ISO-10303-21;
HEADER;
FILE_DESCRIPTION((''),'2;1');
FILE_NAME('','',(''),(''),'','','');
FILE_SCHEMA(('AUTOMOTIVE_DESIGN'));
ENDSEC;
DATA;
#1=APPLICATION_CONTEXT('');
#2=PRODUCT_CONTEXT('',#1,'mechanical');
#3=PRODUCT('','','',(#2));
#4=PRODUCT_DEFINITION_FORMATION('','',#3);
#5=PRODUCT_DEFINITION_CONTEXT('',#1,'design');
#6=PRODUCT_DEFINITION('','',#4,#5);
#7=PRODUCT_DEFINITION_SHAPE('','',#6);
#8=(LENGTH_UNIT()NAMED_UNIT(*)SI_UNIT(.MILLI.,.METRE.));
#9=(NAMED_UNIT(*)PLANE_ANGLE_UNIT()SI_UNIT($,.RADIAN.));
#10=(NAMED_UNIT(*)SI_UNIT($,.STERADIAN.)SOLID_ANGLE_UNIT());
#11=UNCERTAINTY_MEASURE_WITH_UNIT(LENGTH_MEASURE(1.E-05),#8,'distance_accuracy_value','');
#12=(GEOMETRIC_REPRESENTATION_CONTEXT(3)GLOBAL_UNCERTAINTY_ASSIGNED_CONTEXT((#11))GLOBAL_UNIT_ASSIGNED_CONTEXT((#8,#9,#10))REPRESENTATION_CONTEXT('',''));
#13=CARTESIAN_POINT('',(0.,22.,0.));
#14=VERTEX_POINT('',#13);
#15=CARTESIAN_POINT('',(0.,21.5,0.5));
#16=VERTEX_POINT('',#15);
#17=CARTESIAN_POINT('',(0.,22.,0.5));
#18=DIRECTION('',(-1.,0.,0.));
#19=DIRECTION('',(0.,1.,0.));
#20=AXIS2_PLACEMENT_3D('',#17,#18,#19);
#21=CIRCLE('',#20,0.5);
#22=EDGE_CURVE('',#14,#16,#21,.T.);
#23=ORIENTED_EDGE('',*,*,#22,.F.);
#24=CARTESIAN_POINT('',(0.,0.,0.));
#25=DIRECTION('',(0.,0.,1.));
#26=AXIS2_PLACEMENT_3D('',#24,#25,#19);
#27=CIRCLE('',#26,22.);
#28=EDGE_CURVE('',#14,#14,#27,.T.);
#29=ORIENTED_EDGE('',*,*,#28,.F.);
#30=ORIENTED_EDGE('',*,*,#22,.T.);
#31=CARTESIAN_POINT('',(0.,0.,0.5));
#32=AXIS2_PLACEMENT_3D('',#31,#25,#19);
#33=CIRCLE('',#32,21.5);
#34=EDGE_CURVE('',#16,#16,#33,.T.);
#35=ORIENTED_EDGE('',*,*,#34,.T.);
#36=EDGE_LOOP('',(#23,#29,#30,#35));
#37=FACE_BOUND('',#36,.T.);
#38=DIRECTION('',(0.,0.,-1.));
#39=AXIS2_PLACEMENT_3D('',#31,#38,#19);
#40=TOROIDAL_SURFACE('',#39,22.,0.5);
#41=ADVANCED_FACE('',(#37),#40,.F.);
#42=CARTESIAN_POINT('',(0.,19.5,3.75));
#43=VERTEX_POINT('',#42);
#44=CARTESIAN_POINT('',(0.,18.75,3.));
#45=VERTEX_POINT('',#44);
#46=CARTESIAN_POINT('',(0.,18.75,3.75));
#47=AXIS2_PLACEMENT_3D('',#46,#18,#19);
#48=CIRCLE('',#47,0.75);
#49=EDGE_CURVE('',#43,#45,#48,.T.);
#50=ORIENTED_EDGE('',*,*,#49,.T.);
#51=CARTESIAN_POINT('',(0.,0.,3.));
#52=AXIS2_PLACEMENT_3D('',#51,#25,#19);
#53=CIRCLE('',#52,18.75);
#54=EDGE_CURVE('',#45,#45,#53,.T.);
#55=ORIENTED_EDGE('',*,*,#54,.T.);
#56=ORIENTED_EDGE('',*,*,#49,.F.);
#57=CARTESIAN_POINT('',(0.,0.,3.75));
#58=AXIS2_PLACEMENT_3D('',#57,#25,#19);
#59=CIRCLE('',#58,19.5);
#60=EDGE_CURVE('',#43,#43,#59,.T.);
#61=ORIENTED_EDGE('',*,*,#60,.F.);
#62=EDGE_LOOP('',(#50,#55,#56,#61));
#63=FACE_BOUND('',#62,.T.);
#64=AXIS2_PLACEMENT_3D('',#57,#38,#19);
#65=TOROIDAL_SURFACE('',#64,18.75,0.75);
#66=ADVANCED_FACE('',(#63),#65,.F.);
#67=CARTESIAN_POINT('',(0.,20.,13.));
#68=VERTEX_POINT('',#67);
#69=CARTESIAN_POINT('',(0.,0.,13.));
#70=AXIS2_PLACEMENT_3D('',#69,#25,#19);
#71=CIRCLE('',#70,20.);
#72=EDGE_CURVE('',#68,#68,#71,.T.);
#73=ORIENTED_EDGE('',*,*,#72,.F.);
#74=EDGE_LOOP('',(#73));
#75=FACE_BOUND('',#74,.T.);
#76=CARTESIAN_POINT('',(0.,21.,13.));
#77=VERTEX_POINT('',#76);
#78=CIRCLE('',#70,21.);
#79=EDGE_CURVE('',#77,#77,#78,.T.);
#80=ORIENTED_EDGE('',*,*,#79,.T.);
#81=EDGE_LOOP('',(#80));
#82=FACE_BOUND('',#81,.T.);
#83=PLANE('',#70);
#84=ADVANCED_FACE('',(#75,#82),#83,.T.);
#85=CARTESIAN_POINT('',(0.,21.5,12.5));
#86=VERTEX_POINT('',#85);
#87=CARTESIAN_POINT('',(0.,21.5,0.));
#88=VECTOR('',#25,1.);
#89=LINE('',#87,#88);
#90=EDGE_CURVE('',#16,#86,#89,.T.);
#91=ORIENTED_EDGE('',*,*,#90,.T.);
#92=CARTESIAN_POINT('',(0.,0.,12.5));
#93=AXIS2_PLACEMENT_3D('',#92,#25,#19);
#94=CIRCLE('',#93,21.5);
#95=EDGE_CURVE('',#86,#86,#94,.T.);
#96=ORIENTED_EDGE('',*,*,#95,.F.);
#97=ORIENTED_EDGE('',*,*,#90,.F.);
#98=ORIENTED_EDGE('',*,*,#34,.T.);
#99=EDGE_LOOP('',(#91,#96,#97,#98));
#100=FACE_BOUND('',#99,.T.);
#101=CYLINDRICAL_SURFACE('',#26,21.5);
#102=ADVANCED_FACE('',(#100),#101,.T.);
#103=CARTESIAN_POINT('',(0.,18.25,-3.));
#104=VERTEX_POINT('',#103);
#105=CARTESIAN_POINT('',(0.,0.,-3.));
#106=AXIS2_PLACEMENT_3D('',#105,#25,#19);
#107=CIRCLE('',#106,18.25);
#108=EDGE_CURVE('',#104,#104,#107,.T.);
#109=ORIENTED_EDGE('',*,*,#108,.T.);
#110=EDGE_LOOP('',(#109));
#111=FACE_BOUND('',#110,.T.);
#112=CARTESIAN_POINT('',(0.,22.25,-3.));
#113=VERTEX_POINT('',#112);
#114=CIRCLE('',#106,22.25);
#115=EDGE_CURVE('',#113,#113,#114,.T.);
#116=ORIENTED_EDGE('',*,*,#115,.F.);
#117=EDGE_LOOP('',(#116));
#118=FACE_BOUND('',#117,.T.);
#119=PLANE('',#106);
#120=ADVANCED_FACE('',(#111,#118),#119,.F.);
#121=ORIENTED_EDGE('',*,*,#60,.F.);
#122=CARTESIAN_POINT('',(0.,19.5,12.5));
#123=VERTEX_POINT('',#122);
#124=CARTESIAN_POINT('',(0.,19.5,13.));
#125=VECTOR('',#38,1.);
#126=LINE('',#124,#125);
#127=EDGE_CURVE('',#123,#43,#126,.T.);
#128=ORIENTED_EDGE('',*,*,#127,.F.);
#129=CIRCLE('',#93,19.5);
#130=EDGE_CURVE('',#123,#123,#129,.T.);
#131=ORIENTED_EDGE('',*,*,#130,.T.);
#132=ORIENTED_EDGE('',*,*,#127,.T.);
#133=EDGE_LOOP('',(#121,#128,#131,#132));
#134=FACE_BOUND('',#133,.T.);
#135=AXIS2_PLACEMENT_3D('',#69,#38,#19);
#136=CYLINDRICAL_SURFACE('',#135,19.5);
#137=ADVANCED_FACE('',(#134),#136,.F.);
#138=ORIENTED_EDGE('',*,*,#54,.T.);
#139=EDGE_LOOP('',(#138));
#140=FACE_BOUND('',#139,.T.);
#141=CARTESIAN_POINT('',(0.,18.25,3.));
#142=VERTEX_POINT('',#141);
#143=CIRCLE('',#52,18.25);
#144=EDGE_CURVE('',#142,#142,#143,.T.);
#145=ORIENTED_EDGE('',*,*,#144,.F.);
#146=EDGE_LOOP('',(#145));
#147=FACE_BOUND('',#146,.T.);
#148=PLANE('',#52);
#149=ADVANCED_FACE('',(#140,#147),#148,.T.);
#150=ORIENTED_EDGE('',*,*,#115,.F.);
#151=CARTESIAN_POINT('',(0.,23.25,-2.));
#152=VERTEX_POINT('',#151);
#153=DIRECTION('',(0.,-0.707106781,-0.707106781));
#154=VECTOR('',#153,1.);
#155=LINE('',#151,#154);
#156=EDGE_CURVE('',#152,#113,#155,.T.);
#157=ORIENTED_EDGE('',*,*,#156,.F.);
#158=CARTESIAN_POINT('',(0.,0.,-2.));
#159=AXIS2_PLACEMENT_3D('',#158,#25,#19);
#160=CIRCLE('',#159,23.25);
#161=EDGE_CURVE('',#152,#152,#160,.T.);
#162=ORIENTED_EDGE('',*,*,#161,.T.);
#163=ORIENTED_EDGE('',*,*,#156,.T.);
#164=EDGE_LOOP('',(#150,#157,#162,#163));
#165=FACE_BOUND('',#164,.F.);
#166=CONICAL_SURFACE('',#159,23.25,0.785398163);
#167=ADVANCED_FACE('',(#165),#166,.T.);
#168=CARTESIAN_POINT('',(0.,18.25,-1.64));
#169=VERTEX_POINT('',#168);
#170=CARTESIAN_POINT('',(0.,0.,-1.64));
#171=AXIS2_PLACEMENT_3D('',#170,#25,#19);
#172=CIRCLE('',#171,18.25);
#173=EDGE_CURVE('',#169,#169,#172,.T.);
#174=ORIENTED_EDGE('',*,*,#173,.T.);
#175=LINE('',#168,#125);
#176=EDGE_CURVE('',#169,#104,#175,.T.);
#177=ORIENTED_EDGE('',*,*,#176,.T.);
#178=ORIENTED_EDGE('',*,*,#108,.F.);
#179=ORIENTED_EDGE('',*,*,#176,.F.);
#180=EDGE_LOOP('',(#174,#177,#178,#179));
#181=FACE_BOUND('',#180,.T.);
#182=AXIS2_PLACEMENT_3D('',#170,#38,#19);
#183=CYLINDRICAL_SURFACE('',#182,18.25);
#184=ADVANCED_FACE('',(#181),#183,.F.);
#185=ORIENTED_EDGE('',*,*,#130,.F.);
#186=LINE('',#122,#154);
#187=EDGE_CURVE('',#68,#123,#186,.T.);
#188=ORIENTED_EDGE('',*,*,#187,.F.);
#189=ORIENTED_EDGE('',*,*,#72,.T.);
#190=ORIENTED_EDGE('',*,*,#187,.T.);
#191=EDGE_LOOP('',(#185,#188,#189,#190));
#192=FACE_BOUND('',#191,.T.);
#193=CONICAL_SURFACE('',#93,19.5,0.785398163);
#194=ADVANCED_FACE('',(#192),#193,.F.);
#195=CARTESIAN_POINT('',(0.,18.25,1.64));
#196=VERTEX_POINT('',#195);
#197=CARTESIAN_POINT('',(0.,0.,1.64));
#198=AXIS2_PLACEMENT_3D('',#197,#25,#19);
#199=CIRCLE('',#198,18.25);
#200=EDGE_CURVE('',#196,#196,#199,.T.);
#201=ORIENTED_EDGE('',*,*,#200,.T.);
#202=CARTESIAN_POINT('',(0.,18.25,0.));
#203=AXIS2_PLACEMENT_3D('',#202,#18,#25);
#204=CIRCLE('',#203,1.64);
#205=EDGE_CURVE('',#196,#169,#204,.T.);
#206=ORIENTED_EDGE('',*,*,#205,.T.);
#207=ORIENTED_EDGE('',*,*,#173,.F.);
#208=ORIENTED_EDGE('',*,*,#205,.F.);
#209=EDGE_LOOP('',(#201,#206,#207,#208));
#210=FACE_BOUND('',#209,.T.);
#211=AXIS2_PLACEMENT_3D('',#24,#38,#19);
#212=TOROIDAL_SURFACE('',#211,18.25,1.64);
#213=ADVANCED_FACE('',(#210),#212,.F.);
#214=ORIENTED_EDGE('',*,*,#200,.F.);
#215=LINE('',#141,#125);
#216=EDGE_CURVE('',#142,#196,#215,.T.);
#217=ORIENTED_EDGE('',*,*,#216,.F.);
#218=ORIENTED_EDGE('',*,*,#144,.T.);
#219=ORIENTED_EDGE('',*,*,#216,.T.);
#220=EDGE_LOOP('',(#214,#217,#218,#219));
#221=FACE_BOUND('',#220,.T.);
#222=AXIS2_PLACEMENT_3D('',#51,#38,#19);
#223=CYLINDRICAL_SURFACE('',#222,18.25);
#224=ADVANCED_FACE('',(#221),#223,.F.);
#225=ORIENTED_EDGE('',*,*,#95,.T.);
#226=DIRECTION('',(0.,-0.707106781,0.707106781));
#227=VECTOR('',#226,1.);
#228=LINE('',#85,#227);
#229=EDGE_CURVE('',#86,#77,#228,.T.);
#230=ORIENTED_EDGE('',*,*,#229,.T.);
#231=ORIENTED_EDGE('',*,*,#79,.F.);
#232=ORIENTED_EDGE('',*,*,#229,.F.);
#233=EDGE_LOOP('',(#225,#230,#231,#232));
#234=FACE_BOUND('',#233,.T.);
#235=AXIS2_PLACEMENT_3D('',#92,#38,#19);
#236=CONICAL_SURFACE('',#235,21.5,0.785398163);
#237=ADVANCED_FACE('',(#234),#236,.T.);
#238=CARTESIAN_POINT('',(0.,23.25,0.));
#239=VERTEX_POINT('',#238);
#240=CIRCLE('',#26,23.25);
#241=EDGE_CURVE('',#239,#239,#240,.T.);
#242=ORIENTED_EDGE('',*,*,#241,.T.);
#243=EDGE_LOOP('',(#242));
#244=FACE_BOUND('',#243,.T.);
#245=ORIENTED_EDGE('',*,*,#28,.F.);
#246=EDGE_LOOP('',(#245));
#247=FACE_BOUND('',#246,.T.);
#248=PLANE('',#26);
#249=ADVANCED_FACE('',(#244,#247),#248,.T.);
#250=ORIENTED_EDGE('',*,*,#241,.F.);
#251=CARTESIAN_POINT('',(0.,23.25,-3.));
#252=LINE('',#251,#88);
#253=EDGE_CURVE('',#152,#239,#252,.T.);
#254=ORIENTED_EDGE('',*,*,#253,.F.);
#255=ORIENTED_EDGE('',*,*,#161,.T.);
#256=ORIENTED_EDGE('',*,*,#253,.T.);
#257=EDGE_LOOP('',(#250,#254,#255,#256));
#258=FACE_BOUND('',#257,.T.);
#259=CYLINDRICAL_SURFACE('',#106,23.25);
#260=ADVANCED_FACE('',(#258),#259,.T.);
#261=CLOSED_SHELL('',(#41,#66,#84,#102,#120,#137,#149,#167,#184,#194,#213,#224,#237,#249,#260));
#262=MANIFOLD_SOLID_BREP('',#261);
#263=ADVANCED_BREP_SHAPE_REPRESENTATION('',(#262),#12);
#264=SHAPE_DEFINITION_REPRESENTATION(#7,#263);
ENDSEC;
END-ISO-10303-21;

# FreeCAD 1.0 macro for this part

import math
import FreeCAD as App
import Part
import Sketcher


def edges_at(feature, points):
    """Names of the edges that pass closest to the given points."""
    edges = feature.Shape.Edges
    near = lambda p: min(range(len(edges)), key=lambda i: edges[i].distToShape(Part.Vertex(*p))[0])
    return sorted({f"Edge{near(p) + 1}" for p in points})

doc = App.newDocument("Part")
body = doc.addObject("PartDesign::Body", "Body")

# Sketch on YZ plane
sketch1 = body.newObject("Sketcher::SketchObject", "Sketch")
sketch1.AttachmentSupport = (doc.getObject("YZ_Plane"), [""])
sketch1.MapMode = "FlatFace"
sketch1.addGeometry([
    Part.LineSegment(App.Vector(18.25, 3, 0), App.Vector(18.25, 1.64, 0)),  # 0
    Part.ArcOfCircle(Part.Circle(App.Vector(18.25, 0, 0), App.Vector(0, 0, 1), 1.64), math.radians(-90), math.radians(90)),  # 1
    Part.LineSegment(App.Vector(18.25, -1.64, 0), App.Vector(18.25, -3, 0)),  # 2
    Part.LineSegment(App.Vector(18.25, -3, 0), App.Vector(23.25, -3, 0)),  # 3
    Part.LineSegment(App.Vector(23.25, -3, 0), App.Vector(23.25, 0, 0)),  # 4
    Part.LineSegment(App.Vector(23.25, 0, 0), App.Vector(21.5, 0, 0)),  # 5
    Part.LineSegment(App.Vector(21.5, 0, 0), App.Vector(21.5, 13, 0)),  # 6
    Part.LineSegment(App.Vector(21.5, 13, 0), App.Vector(19.5, 13, 0)),  # 7
    Part.LineSegment(App.Vector(19.5, 13, 0), App.Vector(19.5, 3, 0)),  # 8
    Part.LineSegment(App.Vector(19.5, 3, 0), App.Vector(18.25, 3, 0)),  # 9
], False)
sketch1.addConstraint([
    Sketcher.Constraint("Coincident", 0, 2, 1, 2),
    Sketcher.Constraint("Coincident", 1, 1, 2, 1),
    Sketcher.Constraint("Coincident", 2, 2, 3, 1),
    Sketcher.Constraint("Coincident", 3, 2, 4, 1),
    Sketcher.Constraint("Coincident", 4, 2, 5, 1),
    Sketcher.Constraint("Coincident", 5, 2, 6, 1),
    Sketcher.Constraint("Coincident", 6, 2, 7, 1),
    Sketcher.Constraint("Coincident", 7, 2, 8, 1),
    Sketcher.Constraint("Coincident", 8, 2, 9, 1),
    Sketcher.Constraint("Coincident", 9, 2, 0, 1),
    Sketcher.Constraint("Vertical", 0),
    Sketcher.Constraint("Vertical", 2),
    Sketcher.Constraint("Horizontal", 3),
    Sketcher.Constraint("Vertical", 4),
    Sketcher.Constraint("Horizontal", 5),
    Sketcher.Constraint("Vertical", 6),
    Sketcher.Constraint("Horizontal", 7),
    Sketcher.Constraint("Vertical", 8),
    Sketcher.Constraint("Horizontal", 9),
    Sketcher.Constraint("Symmetric", 0, 2, 1, 1, -1),
    Sketcher.Constraint("PointOnObject", 4, 2, -1),
    Sketcher.Constraint("Vertical", 1, 3, 0, 2),
    Sketcher.Constraint("Equal", 0, 2),
    Sketcher.Constraint("DistanceX", 3, 1, 3, 2, 5.0),
    Sketcher.Constraint("DistanceX", 7, 2, 7, 1, 2.0),
    Sketcher.Constraint("DistanceY", 4, 1, 4, 2, 3.0),
    Sketcher.Constraint("DistanceY", 6, 1, 6, 2, 13.0),
    Sketcher.Constraint("Radius", 1, 1.64),
    Sketcher.Constraint("DistanceX", 5, 2, 5, 1, 1.75),
    Sketcher.Constraint("DistanceX", -1, 1, 5, 2, 21.5),
])
revolution = body.newObject("PartDesign::Revolution", "Revolution")
revolution.Profile = sketch1
revolution.ReferenceAxis = (sketch1, ["V_Axis"])
revolution.Angle = 360
doc.recompute()

fillet = body.newObject("PartDesign::Fillet", "Fillet")
fillet.Base = (revolution, edges_at(revolution, [(0, -21.5, 0)]))
fillet.Radius = 0.5
doc.recompute()

chamfer = body.newObject("PartDesign::Chamfer", "Chamfer")
chamfer.Base = (fillet, edges_at(fillet, [(0, -23.25, -3)]))
chamfer.Size = 1
doc.recompute()

chamfer2 = body.newObject("PartDesign::Chamfer", "Chamfer001")
chamfer2.Base = (chamfer, edges_at(chamfer, [(0, -21.5, 13), (0, -19.5, 13)]))
chamfer2.Size = 0.5
doc.recompute()

fillet2 = body.newObject("PartDesign::Fillet", "Fillet001")
fillet2.Base = (chamfer2, edges_at(chamfer2, [(0, -19.5, 3)]))
fillet2.Radius = 0.75

doc.recompute()
